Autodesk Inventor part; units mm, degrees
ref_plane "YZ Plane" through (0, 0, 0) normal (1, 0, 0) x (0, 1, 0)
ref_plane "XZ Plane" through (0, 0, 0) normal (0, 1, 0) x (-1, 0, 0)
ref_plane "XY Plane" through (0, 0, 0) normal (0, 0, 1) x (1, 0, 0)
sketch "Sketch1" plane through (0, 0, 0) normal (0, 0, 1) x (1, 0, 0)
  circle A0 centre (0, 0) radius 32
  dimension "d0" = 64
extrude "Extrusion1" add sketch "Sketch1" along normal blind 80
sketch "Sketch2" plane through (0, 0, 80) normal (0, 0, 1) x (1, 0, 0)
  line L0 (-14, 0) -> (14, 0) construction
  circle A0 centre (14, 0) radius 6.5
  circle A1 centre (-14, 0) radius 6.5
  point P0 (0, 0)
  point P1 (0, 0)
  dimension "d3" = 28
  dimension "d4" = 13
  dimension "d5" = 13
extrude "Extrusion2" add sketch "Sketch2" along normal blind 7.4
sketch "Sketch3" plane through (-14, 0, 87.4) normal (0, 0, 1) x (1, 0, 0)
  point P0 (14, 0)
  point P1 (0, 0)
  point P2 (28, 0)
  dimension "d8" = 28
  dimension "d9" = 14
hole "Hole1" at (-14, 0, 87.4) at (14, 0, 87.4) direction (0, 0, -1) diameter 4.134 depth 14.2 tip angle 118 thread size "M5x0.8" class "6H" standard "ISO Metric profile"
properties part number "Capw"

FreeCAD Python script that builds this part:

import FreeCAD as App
import Part
import Sketcher
from FreeCAD import Vector
Q = App.Units.Quantity

doc = App.newDocument("Part")
body = doc.addObject("PartDesign::Body", "Body")

# Sketch on XY plane
sketch1 = body.newObject("Sketcher::SketchObject", "Sketch")
sketch1.AttachmentSupport = (doc.getObject("XY_Plane"), [""])
sketch1.MapMode = "FlatFace"
sketch1.addGeometry(Part.Circle(Vector(0, 0, 0), Vector(0, 0, 1), 32), False)
sketch1.addConstraint([
    Sketcher.Constraint("Coincident", 0, 3, -1, 1),
    Sketcher.Constraint("Diameter", 0, Q("64 mm")),
])
pad1 = body.newObject("PartDesign::Pad", "Pad")
pad1.Profile = sketch1
pad1.Length = 80

# Sketch on XY plane
sketch2 = body.newObject("Sketcher::SketchObject", "Sketch001")
sketch2.AttachmentSupport = (doc.getObject("XY_Plane"), [""])
sketch2.MapMode = "FlatFace"
sketch2.AttachmentOffset = App.Placement(Vector(0, 0, 80), App.Rotation())
sketch2.addGeometry([
    Part.Circle(Vector(14, 0, 0), Vector(0, 0, 1), 6.5),
    Part.Circle(Vector(-14, 0, 0), Vector(0, 0, 1), 6.5),
], False)
sketch2.addConstraint([
    Sketcher.Constraint("Equal", 0, 1),
    Sketcher.Constraint("Symmetric", 0, 3, 1, 3, -1, 1),
    Sketcher.Constraint("PointOnObject", 0, 3, -1),
    Sketcher.Constraint("Diameter", 0, Q("13 mm")),
    Sketcher.Constraint("DistanceX", 1, 3, 0, 3, Q("28 mm")),
])
pad2 = body.newObject("PartDesign::Pad", "Pad001")
pad2.Profile = sketch2
pad2.Length = 7.4

# Sketch on XY plane
sketch3 = body.newObject("Sketcher::SketchObject", "Sketch002")
sketch3.AttachmentSupport = (doc.getObject("XY_Plane"), [""])
sketch3.MapMode = "FlatFace"
sketch3.AttachmentOffset = App.Placement(Vector(0, 0, 87.4), App.Rotation())
sketch3.addGeometry([
    Part.Circle(Vector(-14, 0, 0), Vector(0, 0, 1), 2.067),
    Part.Circle(Vector(14, 0, 0), Vector(0, 0, 1), 2.067),
], False)
sketch3.addConstraint([
    Sketcher.Constraint("Equal", 0, 1),
    Sketcher.Constraint("Symmetric", 0, 3, 1, 3, -1, 1),
    Sketcher.Constraint("PointOnObject", 0, 3, -1),
    Sketcher.Constraint("Diameter", 0, Q("4.134 mm")),
    Sketcher.Constraint("DistanceX", 0, 3, -1, 1, Q("14 mm")),
])
doc.recompute()
hole = body.newObject("PartDesign::Hole", "Hole")
hole.Profile = sketch3
hole.ThreadType = "None"
hole.Diameter = 4.134
hole.DepthType = "Dimension"
hole.Depth = 14.2
hole.DrillPoint = "Angled"
hole.DrillPointAngle = 118

doc.recompute()
